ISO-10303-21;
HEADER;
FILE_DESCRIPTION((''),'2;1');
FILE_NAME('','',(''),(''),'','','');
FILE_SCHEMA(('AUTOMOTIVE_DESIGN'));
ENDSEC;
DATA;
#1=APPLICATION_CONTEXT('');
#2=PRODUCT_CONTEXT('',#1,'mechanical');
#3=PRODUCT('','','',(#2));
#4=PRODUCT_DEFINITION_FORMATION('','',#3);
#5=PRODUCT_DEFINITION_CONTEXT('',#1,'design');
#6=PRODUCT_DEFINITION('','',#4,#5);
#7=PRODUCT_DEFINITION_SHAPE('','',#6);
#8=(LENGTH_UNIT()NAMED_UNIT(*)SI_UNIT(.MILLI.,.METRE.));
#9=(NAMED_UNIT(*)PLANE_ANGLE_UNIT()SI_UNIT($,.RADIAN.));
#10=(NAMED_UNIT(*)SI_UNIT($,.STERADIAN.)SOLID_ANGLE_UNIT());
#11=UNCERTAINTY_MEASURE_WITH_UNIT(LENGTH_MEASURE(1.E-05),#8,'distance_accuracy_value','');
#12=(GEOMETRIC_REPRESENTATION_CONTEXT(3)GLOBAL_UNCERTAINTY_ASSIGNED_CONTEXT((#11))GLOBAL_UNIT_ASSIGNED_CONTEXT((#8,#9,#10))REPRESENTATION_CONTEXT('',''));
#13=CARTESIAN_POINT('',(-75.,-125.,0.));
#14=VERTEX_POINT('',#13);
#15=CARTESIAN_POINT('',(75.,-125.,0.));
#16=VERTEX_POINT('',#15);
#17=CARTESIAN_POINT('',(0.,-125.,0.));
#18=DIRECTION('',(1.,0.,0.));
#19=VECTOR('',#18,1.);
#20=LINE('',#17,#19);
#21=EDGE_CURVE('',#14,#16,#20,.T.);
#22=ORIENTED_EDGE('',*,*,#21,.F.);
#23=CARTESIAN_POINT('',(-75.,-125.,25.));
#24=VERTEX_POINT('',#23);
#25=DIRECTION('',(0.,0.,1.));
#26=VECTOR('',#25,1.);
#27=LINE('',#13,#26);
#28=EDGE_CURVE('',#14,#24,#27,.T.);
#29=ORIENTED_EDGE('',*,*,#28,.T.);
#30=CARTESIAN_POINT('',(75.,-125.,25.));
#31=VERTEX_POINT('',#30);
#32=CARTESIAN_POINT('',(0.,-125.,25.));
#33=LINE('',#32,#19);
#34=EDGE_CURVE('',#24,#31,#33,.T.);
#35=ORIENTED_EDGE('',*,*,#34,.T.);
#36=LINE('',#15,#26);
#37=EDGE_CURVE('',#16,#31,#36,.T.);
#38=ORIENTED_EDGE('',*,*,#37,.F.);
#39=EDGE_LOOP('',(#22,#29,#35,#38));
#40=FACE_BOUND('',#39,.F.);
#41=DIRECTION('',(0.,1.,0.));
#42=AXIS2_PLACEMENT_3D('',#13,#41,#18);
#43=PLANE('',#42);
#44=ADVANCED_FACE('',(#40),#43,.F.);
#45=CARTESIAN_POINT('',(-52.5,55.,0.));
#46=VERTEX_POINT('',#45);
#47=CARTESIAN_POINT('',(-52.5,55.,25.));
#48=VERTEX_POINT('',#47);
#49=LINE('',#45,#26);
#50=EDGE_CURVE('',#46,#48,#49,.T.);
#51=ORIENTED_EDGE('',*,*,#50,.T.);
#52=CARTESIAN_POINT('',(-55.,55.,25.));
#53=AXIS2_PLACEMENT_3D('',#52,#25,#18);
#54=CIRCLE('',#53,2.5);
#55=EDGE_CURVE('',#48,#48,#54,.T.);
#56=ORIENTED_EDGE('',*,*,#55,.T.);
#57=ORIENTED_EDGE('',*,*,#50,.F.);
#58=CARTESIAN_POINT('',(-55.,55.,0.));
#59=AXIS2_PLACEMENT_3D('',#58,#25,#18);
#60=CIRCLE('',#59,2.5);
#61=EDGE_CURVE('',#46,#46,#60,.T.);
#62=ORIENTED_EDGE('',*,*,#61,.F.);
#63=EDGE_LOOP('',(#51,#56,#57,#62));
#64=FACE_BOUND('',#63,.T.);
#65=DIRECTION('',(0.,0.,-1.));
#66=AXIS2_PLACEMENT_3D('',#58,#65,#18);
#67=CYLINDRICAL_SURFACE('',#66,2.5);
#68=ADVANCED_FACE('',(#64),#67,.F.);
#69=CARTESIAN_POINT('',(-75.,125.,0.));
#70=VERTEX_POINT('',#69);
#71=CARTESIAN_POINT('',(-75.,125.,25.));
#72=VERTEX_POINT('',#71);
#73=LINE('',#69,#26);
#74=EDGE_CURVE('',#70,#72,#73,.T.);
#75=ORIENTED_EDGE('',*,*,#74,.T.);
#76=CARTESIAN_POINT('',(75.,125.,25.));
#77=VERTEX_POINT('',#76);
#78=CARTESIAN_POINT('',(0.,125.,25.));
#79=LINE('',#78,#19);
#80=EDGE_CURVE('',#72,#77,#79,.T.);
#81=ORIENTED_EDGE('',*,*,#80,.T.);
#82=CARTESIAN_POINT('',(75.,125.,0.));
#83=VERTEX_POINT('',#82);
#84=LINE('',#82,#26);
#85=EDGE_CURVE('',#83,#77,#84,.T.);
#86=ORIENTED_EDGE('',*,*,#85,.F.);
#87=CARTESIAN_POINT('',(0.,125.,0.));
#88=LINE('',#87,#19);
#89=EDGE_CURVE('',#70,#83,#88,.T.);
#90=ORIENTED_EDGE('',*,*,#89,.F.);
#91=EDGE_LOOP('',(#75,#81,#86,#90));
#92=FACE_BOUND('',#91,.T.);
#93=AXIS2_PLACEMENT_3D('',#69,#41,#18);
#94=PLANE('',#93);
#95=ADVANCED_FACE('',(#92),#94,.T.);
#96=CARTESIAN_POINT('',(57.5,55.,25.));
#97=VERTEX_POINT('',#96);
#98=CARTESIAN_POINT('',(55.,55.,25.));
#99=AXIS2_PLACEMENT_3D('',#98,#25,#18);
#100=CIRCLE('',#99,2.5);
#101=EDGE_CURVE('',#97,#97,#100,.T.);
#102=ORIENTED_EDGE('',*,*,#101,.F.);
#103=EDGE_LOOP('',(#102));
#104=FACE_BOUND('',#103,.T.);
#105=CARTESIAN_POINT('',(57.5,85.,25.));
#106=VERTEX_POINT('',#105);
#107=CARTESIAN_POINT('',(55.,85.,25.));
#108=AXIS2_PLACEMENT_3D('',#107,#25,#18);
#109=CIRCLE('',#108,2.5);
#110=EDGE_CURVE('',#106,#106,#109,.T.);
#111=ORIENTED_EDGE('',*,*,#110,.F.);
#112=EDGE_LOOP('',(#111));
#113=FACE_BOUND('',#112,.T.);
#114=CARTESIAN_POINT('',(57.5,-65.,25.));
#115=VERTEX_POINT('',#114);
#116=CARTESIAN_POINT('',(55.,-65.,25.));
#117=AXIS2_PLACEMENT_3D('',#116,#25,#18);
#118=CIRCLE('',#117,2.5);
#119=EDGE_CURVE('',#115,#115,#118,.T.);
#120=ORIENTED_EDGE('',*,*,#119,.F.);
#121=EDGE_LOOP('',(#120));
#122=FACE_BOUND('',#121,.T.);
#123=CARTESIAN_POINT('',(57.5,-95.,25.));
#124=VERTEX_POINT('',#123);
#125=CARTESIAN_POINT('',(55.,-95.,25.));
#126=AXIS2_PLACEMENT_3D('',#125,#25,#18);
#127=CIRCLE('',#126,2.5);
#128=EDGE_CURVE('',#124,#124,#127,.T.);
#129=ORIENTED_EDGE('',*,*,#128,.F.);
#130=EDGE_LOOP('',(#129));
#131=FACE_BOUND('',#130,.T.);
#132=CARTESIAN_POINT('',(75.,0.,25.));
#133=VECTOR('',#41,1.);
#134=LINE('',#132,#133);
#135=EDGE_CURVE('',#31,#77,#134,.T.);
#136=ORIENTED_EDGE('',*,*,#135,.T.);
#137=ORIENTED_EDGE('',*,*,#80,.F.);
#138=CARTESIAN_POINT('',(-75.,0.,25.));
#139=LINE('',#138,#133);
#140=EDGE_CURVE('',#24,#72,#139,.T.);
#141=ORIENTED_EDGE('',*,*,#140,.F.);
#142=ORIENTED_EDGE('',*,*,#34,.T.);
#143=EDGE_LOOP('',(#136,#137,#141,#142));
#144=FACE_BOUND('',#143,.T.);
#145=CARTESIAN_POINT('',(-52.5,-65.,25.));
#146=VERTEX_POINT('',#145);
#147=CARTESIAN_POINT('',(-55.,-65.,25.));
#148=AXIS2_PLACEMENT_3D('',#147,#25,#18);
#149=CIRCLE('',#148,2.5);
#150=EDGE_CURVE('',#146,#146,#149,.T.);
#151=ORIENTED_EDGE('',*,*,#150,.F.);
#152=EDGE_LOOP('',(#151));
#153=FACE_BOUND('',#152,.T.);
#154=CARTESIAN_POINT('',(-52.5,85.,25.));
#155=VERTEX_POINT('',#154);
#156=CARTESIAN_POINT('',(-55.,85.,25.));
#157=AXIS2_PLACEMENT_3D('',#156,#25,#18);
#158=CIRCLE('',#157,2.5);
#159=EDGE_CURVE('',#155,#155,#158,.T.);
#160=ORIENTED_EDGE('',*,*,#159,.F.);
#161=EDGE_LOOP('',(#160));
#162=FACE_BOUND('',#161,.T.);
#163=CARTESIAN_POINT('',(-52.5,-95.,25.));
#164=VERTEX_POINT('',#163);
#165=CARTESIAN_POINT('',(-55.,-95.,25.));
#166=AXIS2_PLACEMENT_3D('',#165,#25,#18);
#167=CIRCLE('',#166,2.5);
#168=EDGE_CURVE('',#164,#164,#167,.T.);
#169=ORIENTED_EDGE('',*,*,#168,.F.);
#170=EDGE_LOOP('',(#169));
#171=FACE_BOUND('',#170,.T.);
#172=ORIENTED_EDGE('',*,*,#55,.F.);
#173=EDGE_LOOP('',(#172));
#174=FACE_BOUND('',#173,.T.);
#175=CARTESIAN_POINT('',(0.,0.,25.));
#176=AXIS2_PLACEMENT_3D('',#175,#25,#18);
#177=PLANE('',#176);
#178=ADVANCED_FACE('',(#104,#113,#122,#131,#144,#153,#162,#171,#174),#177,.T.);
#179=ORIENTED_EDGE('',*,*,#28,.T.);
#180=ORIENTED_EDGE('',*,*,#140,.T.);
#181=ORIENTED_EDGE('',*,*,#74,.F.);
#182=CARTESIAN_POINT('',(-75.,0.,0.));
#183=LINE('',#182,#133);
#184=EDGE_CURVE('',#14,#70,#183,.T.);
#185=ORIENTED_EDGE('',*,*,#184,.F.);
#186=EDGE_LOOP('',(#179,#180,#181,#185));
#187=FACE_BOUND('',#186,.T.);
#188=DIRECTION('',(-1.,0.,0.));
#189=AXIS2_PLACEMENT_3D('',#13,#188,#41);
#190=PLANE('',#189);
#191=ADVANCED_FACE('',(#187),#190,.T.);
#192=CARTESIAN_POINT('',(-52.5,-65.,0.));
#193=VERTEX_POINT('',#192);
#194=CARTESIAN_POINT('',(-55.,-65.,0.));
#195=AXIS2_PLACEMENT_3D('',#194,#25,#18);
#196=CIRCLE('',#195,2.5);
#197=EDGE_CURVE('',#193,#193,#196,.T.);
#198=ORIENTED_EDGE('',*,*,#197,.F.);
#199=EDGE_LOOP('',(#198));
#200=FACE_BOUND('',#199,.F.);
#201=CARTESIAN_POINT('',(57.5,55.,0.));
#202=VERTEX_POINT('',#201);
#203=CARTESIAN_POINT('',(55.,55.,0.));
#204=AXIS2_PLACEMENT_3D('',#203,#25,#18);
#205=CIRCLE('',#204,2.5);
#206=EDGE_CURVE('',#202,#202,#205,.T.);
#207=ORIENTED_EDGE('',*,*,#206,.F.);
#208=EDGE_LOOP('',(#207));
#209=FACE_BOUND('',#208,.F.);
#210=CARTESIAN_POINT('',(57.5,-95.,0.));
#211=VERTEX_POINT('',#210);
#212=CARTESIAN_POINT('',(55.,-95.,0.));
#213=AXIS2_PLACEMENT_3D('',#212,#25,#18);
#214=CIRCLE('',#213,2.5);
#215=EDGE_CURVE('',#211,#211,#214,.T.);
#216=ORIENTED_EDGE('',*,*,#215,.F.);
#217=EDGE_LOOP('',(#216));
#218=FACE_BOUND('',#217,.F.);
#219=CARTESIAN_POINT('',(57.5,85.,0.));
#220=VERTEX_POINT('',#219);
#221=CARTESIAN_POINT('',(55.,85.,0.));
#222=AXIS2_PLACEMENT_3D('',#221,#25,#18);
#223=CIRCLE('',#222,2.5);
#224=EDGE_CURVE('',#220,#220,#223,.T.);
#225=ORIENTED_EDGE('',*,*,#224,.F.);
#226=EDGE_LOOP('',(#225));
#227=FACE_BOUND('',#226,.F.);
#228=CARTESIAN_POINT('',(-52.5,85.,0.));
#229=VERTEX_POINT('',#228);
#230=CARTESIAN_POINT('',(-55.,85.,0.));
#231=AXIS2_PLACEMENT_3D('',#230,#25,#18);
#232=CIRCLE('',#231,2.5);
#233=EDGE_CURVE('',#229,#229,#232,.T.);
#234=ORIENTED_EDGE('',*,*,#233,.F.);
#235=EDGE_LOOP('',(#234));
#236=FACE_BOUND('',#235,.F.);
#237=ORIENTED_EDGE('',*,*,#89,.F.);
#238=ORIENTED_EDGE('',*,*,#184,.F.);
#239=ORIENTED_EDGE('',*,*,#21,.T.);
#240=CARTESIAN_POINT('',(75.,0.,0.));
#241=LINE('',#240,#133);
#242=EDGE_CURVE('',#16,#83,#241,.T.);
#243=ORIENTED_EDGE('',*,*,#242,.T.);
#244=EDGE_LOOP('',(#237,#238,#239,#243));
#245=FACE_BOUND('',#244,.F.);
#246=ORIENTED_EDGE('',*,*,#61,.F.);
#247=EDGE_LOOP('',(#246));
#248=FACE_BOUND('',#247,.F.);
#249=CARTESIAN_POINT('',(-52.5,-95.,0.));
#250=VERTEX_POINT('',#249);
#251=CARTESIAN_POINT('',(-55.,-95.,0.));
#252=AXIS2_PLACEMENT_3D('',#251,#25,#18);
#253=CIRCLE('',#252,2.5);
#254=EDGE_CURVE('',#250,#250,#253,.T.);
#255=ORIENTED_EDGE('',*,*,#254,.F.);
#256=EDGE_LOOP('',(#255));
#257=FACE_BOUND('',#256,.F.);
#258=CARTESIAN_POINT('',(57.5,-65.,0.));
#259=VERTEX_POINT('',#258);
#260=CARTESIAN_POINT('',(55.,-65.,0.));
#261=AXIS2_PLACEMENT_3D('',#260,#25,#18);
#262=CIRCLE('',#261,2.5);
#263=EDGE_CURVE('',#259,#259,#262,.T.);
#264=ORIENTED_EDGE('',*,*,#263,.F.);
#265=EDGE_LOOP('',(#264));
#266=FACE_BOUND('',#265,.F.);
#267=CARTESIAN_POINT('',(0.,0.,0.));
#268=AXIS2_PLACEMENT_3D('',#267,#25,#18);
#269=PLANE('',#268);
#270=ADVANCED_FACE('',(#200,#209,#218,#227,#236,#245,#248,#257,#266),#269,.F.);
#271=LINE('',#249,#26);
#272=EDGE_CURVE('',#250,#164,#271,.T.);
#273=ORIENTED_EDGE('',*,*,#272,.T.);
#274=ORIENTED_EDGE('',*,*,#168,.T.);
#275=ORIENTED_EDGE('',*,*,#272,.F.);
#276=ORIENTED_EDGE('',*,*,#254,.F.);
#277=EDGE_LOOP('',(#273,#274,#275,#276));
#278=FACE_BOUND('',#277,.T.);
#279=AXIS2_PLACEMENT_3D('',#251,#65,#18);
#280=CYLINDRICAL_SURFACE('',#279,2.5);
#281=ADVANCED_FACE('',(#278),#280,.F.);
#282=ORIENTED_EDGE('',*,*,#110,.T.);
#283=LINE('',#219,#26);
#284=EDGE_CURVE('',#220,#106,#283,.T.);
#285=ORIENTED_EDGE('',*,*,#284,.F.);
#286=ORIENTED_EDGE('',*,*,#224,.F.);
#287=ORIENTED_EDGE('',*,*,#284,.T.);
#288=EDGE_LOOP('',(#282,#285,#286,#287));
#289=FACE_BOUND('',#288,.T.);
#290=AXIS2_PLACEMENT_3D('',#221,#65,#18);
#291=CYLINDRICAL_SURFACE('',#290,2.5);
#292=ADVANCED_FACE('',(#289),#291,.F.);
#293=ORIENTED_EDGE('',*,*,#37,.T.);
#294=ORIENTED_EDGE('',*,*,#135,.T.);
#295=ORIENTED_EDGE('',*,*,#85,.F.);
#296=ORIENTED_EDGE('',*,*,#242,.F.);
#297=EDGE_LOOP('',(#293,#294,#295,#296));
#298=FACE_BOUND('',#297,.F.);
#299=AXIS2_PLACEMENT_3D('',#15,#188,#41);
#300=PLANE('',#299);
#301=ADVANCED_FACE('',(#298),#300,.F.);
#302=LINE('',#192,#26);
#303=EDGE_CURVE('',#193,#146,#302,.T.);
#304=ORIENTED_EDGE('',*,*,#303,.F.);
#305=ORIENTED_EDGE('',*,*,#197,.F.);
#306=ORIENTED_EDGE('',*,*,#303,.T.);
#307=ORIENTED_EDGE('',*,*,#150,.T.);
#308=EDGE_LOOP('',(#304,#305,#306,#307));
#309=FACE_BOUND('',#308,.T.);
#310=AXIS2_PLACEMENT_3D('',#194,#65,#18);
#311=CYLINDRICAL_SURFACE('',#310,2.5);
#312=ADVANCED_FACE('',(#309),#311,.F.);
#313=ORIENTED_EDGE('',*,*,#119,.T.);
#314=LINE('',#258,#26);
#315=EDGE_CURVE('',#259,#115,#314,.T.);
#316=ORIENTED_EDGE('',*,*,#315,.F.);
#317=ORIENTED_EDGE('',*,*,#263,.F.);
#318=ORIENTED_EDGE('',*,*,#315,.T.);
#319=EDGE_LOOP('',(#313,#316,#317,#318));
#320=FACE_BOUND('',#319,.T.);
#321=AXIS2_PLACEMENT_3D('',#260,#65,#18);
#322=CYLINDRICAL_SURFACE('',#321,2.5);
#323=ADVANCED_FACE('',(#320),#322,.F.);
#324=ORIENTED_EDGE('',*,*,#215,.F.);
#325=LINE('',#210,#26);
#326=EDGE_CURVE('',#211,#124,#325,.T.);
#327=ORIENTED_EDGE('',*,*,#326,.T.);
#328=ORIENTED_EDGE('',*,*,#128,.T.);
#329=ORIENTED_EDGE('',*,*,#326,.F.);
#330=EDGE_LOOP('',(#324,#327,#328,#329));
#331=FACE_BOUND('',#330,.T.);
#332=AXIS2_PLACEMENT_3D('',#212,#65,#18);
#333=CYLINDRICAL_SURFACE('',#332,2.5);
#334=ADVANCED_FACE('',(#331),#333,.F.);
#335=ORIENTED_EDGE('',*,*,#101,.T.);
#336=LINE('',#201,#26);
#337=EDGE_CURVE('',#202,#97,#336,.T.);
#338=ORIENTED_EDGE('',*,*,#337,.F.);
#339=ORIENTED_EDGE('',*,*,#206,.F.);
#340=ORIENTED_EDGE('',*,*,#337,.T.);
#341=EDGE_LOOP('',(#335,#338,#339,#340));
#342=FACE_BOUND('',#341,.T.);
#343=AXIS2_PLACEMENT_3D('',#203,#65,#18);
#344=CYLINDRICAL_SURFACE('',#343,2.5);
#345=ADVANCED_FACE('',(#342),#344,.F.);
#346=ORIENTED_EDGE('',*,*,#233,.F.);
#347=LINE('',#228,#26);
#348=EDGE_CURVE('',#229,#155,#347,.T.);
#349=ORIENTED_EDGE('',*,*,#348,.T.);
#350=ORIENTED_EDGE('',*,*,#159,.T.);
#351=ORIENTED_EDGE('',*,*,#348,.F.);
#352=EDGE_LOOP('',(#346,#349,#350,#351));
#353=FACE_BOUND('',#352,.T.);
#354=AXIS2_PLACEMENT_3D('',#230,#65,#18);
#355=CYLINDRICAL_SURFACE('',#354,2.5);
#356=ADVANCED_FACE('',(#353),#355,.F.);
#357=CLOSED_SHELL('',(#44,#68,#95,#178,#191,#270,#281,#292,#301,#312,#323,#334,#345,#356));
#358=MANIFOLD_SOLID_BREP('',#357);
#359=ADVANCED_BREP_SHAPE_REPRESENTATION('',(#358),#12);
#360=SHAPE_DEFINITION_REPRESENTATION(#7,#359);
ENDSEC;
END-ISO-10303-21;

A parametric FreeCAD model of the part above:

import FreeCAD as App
import Part
import Sketcher
from FreeCAD import Vector


def add_polygon(sketch, points):
    """Adds a closed chain of lines whose ends are joined by coincident constraints."""
    first, n = sketch.GeometryCount, len(points)
    for a, b in zip(points, points[1:] + points[:1]):
        sketch.addGeometry(Part.LineSegment(App.Vector(*a, 0), App.Vector(*b, 0)), False)
    for i in range(n):
        sketch.addConstraint(Sketcher.Constraint("Coincident", first + i, 2, first + (i + 1) % n, 1))

doc = App.newDocument("Part")
body = doc.addObject("PartDesign::Body", "Body")

# Sketch on XY plane
sketch1 = body.newObject("Sketcher::SketchObject", "Sketch")
sketch1.AttachmentSupport = (doc.getObject("XY_Plane"), [""])
sketch1.MapMode = "FlatFace"
add_polygon(sketch1, [(-75, 125), (-75, -125), (75, -125), (75, 125)])  # lines 0-3
sketch1.addGeometry(Part.Circle(Vector(-55, -95, 0), Vector(0, 0, 1), 2.5), False)  # 4
sketch1.addGeometry(Part.Circle(Vector(-55, -65, 0), Vector(0, 0, 1), 2.5), False)  # 5
sketch1.addGeometry(Part.Circle(Vector(55, -95, 0), Vector(0, 0, 1), 2.5), False)  # 6
sketch1.addGeometry(Part.Circle(Vector(55, -65, 0), Vector(0, 0, 1), 2.5), False)  # 7
sketch1.addGeometry(Part.Circle(Vector(-55, 55, 0), Vector(0, 0, 1), 2.5), False)  # 8
sketch1.addGeometry(Part.Circle(Vector(-55, 85, 0), Vector(0, 0, 1), 2.5), False)  # 9
sketch1.addGeometry(Part.Circle(Vector(55, 55, 0), Vector(0, 0, 1), 2.5), False)  # 10
sketch1.addGeometry(Part.Circle(Vector(55, 85, 0), Vector(0, 0, 1), 2.5), False)  # 11
sketch1.addConstraint([
    Sketcher.Constraint("Vertical", 0),
    Sketcher.Constraint("Horizontal", 1),
    Sketcher.Constraint("Vertical", 2),
    Sketcher.Constraint("Horizontal", 3),
    Sketcher.Constraint("Equal", 4, 5),
    Sketcher.Constraint("Equal", 5, 6),
    Sketcher.Constraint("Equal", 6, 7),
    Sketcher.Constraint("Equal", 7, 8),
    Sketcher.Constraint("Equal", 8, 9),
    Sketcher.Constraint("Equal", 9, 10),
    Sketcher.Constraint("Equal", 10, 11),
    Sketcher.Constraint("Symmetric", 0, 2, 2, 2, -1, 1),
    Sketcher.Constraint("Symmetric", 4, 3, 6, 3, -2),
    Sketcher.Constraint("Symmetric", 5, 3, 7, 3, -2),
    Sketcher.Constraint("Symmetric", 8, 3, 10, 3, -2),
    Sketcher.Constraint("Symmetric", 9, 3, 11, 3, -2),
    Sketcher.Constraint("Vertical", 4, 3, 5, 3),
    Sketcher.Constraint("Vertical", 5, 3, 8, 3),
    Sketcher.Constraint("Vertical", 8, 3, 9, 3),
    Sketcher.Constraint("Diameter", 4, 5.0),
    Sketcher.Constraint("DistanceX", 1, 1, 1, 2, 150.0),
    Sketcher.Constraint("DistanceY", 0, 2, 0, 1, 250.0),
    Sketcher.Constraint("DistanceX", 4, 3, -1, 1, 55.0),
    Sketcher.Constraint("DistanceY", 4, 3, -1, 1, 95.0),
    Sketcher.Constraint("DistanceY", 5, 3, -1, 1, 65.0),
    Sketcher.Constraint("DistanceY", -1, 1, 8, 3, 55.0),
    Sketcher.Constraint("DistanceY", -1, 1, 9, 3, 85.0),
])
pad1 = body.newObject("PartDesign::Pad", "Pad")
pad1.Profile = sketch1
pad1.Length = 25

doc.recompute()
